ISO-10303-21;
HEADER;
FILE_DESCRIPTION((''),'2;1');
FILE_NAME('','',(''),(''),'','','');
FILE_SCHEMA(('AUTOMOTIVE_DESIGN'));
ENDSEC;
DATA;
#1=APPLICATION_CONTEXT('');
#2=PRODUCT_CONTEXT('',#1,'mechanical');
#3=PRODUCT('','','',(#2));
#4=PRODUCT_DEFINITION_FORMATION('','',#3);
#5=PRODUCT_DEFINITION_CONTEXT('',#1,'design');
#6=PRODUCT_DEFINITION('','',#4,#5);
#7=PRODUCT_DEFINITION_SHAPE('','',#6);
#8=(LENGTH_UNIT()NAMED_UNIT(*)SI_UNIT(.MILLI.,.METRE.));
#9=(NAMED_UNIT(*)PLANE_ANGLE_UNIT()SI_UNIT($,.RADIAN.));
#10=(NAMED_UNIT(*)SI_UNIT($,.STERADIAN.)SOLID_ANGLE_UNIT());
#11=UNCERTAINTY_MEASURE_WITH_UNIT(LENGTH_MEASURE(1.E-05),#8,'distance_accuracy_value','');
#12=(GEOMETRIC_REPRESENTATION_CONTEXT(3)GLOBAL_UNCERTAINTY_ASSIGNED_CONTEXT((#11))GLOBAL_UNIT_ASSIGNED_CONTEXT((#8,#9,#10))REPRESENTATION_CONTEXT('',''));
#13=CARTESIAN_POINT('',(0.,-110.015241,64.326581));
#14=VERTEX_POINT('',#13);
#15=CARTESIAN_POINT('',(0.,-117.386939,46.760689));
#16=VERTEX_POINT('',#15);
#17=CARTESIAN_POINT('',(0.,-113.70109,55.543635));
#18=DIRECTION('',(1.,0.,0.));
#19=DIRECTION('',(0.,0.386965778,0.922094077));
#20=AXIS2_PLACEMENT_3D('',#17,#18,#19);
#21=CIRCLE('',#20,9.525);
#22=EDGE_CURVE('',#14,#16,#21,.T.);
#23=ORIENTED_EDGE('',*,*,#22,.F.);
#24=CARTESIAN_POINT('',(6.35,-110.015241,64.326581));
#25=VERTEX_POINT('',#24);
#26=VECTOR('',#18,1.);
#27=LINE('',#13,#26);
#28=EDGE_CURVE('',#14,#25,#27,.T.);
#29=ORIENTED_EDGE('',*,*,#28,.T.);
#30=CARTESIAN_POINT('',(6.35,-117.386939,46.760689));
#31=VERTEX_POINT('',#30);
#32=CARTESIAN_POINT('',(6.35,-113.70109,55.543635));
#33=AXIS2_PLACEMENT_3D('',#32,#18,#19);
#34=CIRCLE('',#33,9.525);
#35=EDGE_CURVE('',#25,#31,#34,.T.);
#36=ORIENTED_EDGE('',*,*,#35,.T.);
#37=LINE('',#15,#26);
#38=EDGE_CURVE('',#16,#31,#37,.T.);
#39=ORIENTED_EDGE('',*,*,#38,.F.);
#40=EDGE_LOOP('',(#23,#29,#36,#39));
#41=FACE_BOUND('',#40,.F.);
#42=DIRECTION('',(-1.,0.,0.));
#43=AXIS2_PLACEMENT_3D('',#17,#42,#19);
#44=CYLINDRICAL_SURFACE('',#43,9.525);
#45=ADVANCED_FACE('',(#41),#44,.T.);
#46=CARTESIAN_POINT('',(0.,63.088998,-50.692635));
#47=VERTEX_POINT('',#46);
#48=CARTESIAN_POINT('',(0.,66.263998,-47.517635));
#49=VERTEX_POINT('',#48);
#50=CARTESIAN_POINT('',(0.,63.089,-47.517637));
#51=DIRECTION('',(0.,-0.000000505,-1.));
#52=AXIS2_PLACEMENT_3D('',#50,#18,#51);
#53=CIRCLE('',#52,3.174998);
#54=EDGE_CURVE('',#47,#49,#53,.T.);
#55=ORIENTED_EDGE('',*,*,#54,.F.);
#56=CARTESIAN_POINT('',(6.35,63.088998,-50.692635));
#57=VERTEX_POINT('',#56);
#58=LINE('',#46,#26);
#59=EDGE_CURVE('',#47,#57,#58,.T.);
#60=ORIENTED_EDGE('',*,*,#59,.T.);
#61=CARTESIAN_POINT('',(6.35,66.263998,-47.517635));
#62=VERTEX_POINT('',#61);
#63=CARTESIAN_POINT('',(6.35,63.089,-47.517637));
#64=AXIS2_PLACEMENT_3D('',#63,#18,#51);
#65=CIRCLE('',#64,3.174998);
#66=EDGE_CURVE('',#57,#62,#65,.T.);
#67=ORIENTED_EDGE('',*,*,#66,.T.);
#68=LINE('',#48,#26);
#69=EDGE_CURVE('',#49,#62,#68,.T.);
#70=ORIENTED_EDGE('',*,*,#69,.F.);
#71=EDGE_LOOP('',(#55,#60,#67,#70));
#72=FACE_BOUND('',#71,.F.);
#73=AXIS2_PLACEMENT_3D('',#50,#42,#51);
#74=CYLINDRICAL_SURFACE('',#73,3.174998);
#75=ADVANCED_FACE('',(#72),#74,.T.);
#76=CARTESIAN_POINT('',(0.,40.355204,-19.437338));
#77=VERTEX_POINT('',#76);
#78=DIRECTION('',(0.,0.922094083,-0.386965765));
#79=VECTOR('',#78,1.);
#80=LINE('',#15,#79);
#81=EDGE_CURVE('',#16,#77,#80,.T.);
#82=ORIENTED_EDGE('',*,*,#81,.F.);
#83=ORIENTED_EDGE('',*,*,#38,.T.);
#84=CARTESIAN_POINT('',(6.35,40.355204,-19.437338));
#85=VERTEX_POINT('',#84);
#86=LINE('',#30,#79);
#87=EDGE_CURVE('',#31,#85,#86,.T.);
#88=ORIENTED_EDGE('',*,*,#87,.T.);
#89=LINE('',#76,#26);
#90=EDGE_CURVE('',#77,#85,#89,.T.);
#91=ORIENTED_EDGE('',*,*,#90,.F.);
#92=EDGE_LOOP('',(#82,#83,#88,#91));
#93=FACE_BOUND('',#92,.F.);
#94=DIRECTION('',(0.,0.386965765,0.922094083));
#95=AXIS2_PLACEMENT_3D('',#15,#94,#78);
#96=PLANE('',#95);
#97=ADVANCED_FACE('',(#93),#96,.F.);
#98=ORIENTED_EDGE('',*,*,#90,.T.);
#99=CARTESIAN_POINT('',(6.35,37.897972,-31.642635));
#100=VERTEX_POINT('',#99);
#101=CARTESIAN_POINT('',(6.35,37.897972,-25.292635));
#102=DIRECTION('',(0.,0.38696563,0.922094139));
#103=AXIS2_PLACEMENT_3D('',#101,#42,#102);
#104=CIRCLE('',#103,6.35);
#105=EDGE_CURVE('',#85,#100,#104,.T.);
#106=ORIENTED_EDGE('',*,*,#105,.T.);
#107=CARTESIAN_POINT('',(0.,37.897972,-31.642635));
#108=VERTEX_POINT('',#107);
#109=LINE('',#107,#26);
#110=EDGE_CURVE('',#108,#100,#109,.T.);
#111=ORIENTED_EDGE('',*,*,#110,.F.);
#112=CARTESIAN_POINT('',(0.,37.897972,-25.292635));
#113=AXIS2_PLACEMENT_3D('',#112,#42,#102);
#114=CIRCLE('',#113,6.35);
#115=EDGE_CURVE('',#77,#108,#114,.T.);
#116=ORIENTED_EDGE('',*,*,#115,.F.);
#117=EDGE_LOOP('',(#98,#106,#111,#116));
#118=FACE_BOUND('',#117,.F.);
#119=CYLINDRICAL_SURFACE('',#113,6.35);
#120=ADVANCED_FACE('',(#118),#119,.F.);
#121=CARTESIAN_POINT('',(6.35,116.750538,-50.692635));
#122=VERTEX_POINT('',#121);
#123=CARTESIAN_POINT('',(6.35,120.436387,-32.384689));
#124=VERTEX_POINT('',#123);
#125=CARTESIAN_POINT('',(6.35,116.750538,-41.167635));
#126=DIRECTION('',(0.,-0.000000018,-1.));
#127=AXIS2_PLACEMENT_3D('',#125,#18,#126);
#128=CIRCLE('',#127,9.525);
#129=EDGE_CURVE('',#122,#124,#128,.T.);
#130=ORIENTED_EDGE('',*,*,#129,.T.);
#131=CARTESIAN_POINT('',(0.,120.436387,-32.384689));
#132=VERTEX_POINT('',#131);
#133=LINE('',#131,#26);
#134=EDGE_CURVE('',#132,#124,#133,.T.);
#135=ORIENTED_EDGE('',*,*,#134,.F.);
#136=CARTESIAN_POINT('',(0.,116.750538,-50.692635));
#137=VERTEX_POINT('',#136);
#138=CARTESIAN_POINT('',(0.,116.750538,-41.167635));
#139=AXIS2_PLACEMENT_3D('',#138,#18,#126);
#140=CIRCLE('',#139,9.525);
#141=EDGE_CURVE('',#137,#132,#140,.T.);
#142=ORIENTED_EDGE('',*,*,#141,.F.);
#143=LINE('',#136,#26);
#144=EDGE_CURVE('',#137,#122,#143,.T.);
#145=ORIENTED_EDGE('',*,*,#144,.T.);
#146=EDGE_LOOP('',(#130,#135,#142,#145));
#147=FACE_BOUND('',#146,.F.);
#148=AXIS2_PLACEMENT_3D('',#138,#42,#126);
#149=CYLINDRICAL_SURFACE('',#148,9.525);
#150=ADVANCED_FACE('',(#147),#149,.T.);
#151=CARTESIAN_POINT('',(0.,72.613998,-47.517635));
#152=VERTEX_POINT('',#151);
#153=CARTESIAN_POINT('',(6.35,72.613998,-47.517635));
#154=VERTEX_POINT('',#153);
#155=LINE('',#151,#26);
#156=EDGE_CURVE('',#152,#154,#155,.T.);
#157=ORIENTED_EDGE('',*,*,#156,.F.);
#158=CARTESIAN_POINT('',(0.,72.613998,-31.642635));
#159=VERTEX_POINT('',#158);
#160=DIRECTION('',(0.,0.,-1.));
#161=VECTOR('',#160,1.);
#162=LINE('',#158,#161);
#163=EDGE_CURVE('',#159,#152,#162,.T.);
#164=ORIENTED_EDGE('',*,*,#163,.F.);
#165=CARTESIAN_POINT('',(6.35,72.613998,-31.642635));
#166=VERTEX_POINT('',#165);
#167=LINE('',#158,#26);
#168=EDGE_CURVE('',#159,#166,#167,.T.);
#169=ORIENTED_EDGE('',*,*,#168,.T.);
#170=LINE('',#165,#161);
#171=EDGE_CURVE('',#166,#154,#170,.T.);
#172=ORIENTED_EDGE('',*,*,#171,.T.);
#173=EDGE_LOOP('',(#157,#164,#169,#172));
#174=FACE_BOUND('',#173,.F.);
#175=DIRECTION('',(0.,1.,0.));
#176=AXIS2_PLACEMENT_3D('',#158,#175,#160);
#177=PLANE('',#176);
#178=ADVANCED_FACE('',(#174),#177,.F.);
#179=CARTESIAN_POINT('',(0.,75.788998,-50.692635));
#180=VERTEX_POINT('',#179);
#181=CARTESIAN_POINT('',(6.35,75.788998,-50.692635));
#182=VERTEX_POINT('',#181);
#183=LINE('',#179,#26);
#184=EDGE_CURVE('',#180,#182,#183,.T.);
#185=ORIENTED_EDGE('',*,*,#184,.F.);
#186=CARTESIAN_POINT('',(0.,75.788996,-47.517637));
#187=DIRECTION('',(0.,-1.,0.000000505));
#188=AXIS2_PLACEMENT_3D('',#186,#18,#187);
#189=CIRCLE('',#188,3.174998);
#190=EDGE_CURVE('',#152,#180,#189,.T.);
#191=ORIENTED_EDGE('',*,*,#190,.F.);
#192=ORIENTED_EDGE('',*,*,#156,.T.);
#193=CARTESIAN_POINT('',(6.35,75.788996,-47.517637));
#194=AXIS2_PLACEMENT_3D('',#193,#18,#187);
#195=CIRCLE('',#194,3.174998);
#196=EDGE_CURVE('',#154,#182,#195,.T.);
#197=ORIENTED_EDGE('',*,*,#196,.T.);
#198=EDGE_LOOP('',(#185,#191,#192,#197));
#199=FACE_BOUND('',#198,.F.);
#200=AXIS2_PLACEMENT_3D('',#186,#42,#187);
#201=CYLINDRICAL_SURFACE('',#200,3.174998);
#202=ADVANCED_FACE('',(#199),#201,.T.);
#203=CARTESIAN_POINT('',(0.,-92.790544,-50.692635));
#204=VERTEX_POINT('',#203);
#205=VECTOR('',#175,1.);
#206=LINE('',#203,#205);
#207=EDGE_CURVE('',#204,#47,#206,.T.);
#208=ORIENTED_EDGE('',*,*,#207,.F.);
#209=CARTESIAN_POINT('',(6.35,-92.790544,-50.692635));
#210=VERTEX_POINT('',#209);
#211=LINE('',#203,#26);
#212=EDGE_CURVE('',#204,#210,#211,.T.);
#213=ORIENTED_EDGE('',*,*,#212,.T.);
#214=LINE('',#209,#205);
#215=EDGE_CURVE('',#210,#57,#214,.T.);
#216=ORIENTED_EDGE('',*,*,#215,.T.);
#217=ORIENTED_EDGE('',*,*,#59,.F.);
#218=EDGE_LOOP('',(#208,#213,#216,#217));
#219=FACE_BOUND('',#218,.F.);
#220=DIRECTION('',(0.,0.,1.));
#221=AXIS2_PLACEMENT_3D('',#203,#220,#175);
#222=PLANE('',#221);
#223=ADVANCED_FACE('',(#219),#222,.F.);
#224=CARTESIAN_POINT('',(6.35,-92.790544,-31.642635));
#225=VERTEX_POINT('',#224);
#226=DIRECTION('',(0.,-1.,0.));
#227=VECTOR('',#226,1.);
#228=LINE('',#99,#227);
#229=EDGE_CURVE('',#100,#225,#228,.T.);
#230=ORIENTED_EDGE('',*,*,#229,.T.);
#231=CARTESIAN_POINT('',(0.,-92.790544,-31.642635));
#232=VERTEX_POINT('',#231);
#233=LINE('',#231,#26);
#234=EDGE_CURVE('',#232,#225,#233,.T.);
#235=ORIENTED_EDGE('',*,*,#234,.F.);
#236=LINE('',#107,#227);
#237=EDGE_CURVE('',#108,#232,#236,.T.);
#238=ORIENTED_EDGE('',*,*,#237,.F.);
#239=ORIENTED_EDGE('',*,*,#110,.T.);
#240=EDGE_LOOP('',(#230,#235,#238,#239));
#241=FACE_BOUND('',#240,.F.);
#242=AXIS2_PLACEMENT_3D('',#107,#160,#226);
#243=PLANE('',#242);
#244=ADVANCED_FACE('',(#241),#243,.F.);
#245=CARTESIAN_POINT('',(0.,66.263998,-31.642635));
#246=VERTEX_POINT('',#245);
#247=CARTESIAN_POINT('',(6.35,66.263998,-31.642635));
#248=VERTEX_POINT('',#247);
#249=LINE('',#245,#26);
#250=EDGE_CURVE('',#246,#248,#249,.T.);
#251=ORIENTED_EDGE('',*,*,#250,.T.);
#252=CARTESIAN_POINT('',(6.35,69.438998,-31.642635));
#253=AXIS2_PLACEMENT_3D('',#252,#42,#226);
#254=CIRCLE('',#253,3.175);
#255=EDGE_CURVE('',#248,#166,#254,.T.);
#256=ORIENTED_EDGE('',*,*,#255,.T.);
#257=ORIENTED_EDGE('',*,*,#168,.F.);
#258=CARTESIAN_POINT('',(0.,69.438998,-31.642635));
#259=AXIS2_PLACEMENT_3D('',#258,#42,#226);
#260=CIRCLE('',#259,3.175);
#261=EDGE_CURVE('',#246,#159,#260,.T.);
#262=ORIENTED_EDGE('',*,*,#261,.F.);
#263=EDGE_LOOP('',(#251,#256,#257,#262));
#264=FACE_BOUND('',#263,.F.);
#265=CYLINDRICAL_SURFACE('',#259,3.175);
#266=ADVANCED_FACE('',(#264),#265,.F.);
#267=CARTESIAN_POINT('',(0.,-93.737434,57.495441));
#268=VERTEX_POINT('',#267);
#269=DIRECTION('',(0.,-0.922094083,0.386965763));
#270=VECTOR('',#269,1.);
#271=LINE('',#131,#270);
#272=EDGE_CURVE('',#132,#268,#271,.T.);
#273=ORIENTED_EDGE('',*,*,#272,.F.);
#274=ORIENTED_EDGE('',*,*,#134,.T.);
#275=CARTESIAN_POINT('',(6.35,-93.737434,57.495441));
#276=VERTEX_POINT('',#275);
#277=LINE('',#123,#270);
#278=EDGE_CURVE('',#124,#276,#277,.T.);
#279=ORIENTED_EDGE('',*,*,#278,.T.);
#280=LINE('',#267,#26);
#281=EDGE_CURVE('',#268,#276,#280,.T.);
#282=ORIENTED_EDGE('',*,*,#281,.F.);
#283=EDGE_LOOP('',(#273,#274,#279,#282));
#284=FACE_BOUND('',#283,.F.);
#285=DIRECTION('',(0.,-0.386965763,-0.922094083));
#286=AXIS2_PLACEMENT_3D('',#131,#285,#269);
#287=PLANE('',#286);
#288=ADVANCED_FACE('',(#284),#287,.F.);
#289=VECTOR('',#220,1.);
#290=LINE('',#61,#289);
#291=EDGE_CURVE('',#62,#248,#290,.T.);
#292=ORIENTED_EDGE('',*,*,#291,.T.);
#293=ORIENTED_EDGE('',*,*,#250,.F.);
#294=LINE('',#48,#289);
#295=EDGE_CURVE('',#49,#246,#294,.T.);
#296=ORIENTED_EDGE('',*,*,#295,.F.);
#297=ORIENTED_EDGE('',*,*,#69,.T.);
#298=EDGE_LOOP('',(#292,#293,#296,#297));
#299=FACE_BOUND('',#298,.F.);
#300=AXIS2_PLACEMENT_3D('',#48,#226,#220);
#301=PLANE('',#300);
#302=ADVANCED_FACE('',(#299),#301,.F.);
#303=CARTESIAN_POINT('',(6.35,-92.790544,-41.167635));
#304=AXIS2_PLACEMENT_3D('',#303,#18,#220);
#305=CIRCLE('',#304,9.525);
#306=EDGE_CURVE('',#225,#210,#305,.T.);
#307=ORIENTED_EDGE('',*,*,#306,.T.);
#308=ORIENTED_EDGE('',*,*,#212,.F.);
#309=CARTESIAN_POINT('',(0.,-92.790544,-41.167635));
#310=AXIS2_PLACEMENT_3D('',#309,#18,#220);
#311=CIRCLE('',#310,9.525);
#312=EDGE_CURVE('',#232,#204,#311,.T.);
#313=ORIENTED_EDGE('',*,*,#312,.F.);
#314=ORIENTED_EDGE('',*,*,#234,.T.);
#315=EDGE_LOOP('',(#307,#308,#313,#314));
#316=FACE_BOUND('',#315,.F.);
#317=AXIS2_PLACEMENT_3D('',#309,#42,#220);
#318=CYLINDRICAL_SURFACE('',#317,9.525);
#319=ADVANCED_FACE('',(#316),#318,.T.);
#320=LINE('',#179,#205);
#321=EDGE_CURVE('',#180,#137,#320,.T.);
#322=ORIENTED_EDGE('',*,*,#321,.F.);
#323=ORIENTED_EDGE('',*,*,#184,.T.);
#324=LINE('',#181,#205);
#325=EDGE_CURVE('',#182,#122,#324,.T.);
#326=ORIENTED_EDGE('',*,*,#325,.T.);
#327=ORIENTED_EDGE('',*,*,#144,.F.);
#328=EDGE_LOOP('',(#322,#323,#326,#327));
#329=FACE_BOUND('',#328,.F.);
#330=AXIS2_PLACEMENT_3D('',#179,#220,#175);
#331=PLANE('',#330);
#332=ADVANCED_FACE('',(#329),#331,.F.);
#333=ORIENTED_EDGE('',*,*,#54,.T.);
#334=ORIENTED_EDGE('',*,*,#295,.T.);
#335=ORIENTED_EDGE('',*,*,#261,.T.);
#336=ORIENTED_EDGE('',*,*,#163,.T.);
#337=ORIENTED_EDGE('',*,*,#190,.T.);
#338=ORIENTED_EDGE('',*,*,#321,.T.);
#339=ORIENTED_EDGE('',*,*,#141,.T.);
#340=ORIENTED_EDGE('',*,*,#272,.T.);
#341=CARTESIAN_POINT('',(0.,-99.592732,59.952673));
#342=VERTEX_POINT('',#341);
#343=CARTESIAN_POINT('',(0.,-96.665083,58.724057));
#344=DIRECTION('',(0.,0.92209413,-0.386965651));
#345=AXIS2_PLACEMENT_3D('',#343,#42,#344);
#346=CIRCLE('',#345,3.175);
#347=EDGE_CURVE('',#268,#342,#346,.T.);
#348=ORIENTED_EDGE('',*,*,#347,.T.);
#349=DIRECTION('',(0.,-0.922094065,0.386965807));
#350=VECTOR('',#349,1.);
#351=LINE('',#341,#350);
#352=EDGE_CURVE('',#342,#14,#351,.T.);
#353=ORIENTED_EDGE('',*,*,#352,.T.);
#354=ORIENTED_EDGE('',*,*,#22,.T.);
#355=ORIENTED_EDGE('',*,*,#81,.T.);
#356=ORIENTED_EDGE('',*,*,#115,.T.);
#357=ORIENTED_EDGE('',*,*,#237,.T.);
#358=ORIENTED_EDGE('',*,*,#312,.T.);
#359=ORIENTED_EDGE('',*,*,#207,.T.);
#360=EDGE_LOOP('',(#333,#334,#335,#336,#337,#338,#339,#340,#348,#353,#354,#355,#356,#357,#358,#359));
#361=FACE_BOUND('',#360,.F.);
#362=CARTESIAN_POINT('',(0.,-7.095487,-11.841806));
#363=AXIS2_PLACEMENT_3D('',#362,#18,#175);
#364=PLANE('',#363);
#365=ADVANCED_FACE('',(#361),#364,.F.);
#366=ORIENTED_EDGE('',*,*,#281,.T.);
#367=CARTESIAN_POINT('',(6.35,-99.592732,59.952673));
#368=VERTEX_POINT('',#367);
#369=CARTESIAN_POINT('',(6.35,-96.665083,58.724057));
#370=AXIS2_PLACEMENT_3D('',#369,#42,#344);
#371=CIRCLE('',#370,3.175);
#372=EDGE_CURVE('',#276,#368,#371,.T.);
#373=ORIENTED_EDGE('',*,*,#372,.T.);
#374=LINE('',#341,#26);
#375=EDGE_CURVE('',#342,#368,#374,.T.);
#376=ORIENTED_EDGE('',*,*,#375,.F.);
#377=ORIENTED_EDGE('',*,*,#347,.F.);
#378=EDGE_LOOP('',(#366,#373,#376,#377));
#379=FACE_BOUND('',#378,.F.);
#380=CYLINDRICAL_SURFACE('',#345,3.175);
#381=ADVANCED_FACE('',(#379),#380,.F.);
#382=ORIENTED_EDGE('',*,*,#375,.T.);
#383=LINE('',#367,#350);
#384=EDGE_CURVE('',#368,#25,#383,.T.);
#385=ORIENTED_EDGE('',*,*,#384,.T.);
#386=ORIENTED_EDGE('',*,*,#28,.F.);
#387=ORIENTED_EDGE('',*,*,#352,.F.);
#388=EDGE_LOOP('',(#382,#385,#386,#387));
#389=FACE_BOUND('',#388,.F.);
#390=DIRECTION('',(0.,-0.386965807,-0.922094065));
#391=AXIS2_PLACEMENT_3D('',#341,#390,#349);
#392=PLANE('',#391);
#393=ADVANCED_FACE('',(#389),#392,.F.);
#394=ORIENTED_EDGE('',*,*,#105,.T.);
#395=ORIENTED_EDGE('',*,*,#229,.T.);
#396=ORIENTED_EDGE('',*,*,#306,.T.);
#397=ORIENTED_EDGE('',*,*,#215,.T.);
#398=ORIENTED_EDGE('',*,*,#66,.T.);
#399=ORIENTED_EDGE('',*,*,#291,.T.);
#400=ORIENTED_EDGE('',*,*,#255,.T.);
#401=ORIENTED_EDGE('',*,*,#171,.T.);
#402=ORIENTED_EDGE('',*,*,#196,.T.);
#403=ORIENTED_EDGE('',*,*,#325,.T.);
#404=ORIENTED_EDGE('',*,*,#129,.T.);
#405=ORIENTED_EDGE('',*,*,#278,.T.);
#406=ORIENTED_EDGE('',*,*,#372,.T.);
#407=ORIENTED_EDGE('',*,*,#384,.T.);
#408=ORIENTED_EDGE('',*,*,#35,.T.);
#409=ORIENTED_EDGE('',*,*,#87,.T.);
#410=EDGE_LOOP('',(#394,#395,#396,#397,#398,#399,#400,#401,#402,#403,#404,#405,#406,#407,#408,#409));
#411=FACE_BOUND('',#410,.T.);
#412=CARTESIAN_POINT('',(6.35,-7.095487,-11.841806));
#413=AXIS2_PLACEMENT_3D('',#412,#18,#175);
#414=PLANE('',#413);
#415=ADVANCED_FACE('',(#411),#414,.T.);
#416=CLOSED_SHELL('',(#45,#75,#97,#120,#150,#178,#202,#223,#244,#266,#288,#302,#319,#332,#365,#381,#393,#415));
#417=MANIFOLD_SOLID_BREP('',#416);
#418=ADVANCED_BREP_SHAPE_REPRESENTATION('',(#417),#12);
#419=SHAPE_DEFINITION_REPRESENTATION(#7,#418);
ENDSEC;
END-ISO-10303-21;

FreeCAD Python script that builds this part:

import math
import FreeCAD as App
import Part
import Sketcher
Q = App.Units.Quantity

doc = App.newDocument("Part")
params = doc.addObject("Spreadsheet::Sheet", "Params")
for row, (alias, value) in enumerate([
    ("sketch1_radius", "0.25 in"),
    ("sketch1_radius2", "0.375 in"),
    ("sketch1_radius3", "0.125 in"),
    ("sketch1_radius4", "0.375 in"),
    ("sketch1_radius5", "0.375 in"),
    ("pad1_length", "0.25 in"),
], start=1):
    params.set(f"A{row}", alias)
    params.set(f"B{row}", "=" + value)
    params.setAlias(f"B{row}", alias)

body = doc.addObject("PartDesign::Body", "Body")

# Sketch on YZ plane
sketch1 = body.newObject("Sketcher::SketchObject", "Sketch")
sketch1.AttachmentSupport = (doc.getObject("YZ_Plane"), [""])
sketch1.MapMode = "FlatFace"
sketch1.addGeometry([
    Part.ArcOfCircle(Part.Circle(App.Vector(116.750538, -41.167635, 0), App.Vector(0, 0, 1), 9.525), math.radians(-90.000001), math.radians(67.234169)),  # 0
    Part.LineSegment(App.Vector(120.436387, -32.384689, 0), App.Vector(-93.737434, 57.495441, 0)),  # 1
    Part.ArcOfCircle(Part.Circle(App.Vector(-96.665083, 58.724057, 0), App.Vector(0, 0, 1), 3.175), math.radians(157.234175), math.radians(337.234175)),  # 2
    Part.LineSegment(App.Vector(-99.592732, 59.952673, 0), App.Vector(-110.015241, 64.326581, 0)),  # 3
    Part.ArcOfCircle(Part.Circle(App.Vector(-113.70109, 55.543635, 0), App.Vector(0, 0, 1), 9.525), math.radians(67.234168), math.radians(247.234168)),  # 4
    Part.LineSegment(App.Vector(-117.386939, 46.760689, 0), App.Vector(40.355204, -19.437338, 0)),  # 5
    Part.ArcOfCircle(Part.Circle(App.Vector(37.897972, -25.292635, 0), App.Vector(0, 0, 1), 6.35), math.radians(-90.000004), math.radians(67.234177)),  # 6
    Part.LineSegment(App.Vector(37.897972, -31.642635, 0), App.Vector(-92.790544, -31.642635, 0)),  # 7
    Part.ArcOfCircle(Part.Circle(App.Vector(-92.790544, -41.167635, 0), App.Vector(0, 0, 1), 9.525), math.radians(90), math.radians(270)),  # 8
    Part.LineSegment(App.Vector(-92.790544, -50.692635, 0), App.Vector(63.088998, -50.692635, 0)),  # 9
    Part.ArcOfCircle(Part.Circle(App.Vector(63.089, -47.517637, 0), App.Vector(0, 0, 1), 3.174998), math.radians(-90.000029), math.radians(0.000029)),  # 10
    Part.LineSegment(App.Vector(66.263998, -47.517635, 0), App.Vector(66.263998, -31.642635, 0)),  # 11
    Part.ArcOfCircle(Part.Circle(App.Vector(69.438998, -31.642635, 0), App.Vector(0, 0, 1), 3.175), math.radians(0), math.radians(180)),  # 12
    Part.LineSegment(App.Vector(72.613998, -31.642635, 0), App.Vector(72.613998, -47.517635, 0)),  # 13
    Part.ArcOfCircle(Part.Circle(App.Vector(75.788996, -47.517637, 0), App.Vector(0, 0, 1), 3.174998), math.radians(179.999971), math.radians(270.000029)),  # 14
    Part.LineSegment(App.Vector(75.788998, -50.692635, 0), App.Vector(116.750538, -50.692635, 0)),  # 15
], False)
sketch1.addConstraint([
    Sketcher.Constraint("Coincident", 0, 2, 1, 1),
    Sketcher.Constraint("Coincident", 1, 2, 2, 2),
    Sketcher.Constraint("Coincident", 2, 1, 3, 1),
    Sketcher.Constraint("Coincident", 3, 2, 4, 1),
    Sketcher.Constraint("Coincident", 4, 2, 5, 1),
    Sketcher.Constraint("Coincident", 5, 2, 6, 2),
    Sketcher.Constraint("Coincident", 6, 1, 7, 1),
    Sketcher.Constraint("Coincident", 7, 2, 8, 1),
    Sketcher.Constraint("Coincident", 8, 2, 9, 1),
    Sketcher.Constraint("Coincident", 9, 2, 10, 1),
    Sketcher.Constraint("Coincident", 10, 2, 11, 1),
    Sketcher.Constraint("Coincident", 11, 2, 12, 2),
    Sketcher.Constraint("Coincident", 12, 1, 13, 1),
    Sketcher.Constraint("Coincident", 13, 2, 14, 1),
    Sketcher.Constraint("Coincident", 14, 2, 15, 1),
    Sketcher.Constraint("Coincident", 15, 2, 0, 1),
    Sketcher.Constraint("Horizontal", 7),
    Sketcher.Constraint("Horizontal", 9),
    Sketcher.Constraint("Vertical", 11),
    Sketcher.Constraint("Vertical", 13),
    Sketcher.Constraint("Horizontal", 15),
    Sketcher.Constraint("Radius", 6, Q("0.25 in")),
    Sketcher.Constraint("Radius", 0, Q("0.375 in")),
    Sketcher.Constraint("Radius", 2, Q("0.125 in")),
    Sketcher.Constraint("Radius", 4, Q("0.375 in")),
    Sketcher.Constraint("Radius", 8, Q("0.375 in")),
    Sketcher.Constraint("Radius", 10, Q("0.1249999 in")),
    Sketcher.Constraint("Radius", 12, Q("0.125 in")),
    Sketcher.Constraint("Radius", 14, Q("0.1249999 in")),
    Sketcher.Constraint("DistanceX", 9, 2, 14, 3, Q("0.4999999 in")),
    Sketcher.Constraint("DistanceX", 9, 2, 14, 2, Q("0.5 in")),
    Sketcher.Constraint("DistanceY", 11, 1, 11, 2, Q("0.625 in")),
    Sketcher.Constraint("DistanceY", 13, 2, 13, 1, Q("0.625 in")),
    Sketcher.Constraint("DistanceY", 10, 3, 0, 3, Q("0.2500001 in")),
    Sketcher.Constraint("DistanceY", 12, 3, 6, 3, Q("0.25 in")),
    Sketcher.Constraint("DistanceY", 9, 2, 11, 2, Q("0.75 in")),
    Sketcher.Constraint("DistanceY", 14, 3, 12, 1, Q("0.6250001 in")),
    Sketcher.Constraint("DistanceY", -1, 1, 1, 2, Q("2.2636 in")),
    Sketcher.Constraint("DistanceX", 9, 1, 9, 2, 155.879542),
    Sketcher.Constraint("DistanceX", 15, 1, 15, 2, 40.96154),
    Sketcher.Constraint("DistanceX", -1, 1, 10, 3, 63.089),
    Sketcher.Constraint("DistanceY", 10, 3, 5, 2, 28.080299),
    Sketcher.Constraint("DistanceX", 7, 2, 7, 1, 130.688516),
    Sketcher.Constraint("DistanceX", -1, 1, 0, 3, 116.750538),
    Sketcher.Constraint("DistanceX", 4, 3, -1, 1, 113.70109),
    Sketcher.Constraint("DistanceY", 0, 2, -1, 1, 32.384689),
    Sketcher.Constraint("DistanceX", 2, 1, -1, 1, 99.592732),
    Sketcher.Constraint("DistanceX", 3, 2, -1, 1, 110.015241),
    Sketcher.Constraint("DistanceY", -1, 1, 3, 2, 64.326581),
    Sketcher.Constraint("DistanceX", 4, 2, -1, 1, 117.386939),
    Sketcher.Constraint("DistanceY", 5, 2, -1, 1, 19.437338),
    Sketcher.Constraint("DistanceX", 2, 3, 0, 3, 213.415621),
    Sketcher.Constraint("DistanceX", 2, 3, 8, 3, 3.874539),
    Sketcher.Constraint("DistanceY", 12, 3, 2, 3, 90.366692),
    Sketcher.Constraint("DistanceX", 6, 1, 5, 2, 2.457232),
    Sketcher.Constraint("DistanceX", 1, 2, 7, 2, 0.94689),
])
sketch1.setExpression("Constraints[21]", "Params.sketch1_radius")
sketch1.setExpression("Constraints[22]", "Params.sketch1_radius2")
sketch1.setExpression("Constraints[23]", "Params.sketch1_radius3")
sketch1.setExpression("Constraints[24]", "Params.sketch1_radius4")
sketch1.setExpression("Constraints[25]", "Params.sketch1_radius5")
pad1 = body.newObject("PartDesign::Pad", "Pad")
pad1.Profile = sketch1
pad1.setExpression("Length", "Params.pad1_length")

doc.recompute()
